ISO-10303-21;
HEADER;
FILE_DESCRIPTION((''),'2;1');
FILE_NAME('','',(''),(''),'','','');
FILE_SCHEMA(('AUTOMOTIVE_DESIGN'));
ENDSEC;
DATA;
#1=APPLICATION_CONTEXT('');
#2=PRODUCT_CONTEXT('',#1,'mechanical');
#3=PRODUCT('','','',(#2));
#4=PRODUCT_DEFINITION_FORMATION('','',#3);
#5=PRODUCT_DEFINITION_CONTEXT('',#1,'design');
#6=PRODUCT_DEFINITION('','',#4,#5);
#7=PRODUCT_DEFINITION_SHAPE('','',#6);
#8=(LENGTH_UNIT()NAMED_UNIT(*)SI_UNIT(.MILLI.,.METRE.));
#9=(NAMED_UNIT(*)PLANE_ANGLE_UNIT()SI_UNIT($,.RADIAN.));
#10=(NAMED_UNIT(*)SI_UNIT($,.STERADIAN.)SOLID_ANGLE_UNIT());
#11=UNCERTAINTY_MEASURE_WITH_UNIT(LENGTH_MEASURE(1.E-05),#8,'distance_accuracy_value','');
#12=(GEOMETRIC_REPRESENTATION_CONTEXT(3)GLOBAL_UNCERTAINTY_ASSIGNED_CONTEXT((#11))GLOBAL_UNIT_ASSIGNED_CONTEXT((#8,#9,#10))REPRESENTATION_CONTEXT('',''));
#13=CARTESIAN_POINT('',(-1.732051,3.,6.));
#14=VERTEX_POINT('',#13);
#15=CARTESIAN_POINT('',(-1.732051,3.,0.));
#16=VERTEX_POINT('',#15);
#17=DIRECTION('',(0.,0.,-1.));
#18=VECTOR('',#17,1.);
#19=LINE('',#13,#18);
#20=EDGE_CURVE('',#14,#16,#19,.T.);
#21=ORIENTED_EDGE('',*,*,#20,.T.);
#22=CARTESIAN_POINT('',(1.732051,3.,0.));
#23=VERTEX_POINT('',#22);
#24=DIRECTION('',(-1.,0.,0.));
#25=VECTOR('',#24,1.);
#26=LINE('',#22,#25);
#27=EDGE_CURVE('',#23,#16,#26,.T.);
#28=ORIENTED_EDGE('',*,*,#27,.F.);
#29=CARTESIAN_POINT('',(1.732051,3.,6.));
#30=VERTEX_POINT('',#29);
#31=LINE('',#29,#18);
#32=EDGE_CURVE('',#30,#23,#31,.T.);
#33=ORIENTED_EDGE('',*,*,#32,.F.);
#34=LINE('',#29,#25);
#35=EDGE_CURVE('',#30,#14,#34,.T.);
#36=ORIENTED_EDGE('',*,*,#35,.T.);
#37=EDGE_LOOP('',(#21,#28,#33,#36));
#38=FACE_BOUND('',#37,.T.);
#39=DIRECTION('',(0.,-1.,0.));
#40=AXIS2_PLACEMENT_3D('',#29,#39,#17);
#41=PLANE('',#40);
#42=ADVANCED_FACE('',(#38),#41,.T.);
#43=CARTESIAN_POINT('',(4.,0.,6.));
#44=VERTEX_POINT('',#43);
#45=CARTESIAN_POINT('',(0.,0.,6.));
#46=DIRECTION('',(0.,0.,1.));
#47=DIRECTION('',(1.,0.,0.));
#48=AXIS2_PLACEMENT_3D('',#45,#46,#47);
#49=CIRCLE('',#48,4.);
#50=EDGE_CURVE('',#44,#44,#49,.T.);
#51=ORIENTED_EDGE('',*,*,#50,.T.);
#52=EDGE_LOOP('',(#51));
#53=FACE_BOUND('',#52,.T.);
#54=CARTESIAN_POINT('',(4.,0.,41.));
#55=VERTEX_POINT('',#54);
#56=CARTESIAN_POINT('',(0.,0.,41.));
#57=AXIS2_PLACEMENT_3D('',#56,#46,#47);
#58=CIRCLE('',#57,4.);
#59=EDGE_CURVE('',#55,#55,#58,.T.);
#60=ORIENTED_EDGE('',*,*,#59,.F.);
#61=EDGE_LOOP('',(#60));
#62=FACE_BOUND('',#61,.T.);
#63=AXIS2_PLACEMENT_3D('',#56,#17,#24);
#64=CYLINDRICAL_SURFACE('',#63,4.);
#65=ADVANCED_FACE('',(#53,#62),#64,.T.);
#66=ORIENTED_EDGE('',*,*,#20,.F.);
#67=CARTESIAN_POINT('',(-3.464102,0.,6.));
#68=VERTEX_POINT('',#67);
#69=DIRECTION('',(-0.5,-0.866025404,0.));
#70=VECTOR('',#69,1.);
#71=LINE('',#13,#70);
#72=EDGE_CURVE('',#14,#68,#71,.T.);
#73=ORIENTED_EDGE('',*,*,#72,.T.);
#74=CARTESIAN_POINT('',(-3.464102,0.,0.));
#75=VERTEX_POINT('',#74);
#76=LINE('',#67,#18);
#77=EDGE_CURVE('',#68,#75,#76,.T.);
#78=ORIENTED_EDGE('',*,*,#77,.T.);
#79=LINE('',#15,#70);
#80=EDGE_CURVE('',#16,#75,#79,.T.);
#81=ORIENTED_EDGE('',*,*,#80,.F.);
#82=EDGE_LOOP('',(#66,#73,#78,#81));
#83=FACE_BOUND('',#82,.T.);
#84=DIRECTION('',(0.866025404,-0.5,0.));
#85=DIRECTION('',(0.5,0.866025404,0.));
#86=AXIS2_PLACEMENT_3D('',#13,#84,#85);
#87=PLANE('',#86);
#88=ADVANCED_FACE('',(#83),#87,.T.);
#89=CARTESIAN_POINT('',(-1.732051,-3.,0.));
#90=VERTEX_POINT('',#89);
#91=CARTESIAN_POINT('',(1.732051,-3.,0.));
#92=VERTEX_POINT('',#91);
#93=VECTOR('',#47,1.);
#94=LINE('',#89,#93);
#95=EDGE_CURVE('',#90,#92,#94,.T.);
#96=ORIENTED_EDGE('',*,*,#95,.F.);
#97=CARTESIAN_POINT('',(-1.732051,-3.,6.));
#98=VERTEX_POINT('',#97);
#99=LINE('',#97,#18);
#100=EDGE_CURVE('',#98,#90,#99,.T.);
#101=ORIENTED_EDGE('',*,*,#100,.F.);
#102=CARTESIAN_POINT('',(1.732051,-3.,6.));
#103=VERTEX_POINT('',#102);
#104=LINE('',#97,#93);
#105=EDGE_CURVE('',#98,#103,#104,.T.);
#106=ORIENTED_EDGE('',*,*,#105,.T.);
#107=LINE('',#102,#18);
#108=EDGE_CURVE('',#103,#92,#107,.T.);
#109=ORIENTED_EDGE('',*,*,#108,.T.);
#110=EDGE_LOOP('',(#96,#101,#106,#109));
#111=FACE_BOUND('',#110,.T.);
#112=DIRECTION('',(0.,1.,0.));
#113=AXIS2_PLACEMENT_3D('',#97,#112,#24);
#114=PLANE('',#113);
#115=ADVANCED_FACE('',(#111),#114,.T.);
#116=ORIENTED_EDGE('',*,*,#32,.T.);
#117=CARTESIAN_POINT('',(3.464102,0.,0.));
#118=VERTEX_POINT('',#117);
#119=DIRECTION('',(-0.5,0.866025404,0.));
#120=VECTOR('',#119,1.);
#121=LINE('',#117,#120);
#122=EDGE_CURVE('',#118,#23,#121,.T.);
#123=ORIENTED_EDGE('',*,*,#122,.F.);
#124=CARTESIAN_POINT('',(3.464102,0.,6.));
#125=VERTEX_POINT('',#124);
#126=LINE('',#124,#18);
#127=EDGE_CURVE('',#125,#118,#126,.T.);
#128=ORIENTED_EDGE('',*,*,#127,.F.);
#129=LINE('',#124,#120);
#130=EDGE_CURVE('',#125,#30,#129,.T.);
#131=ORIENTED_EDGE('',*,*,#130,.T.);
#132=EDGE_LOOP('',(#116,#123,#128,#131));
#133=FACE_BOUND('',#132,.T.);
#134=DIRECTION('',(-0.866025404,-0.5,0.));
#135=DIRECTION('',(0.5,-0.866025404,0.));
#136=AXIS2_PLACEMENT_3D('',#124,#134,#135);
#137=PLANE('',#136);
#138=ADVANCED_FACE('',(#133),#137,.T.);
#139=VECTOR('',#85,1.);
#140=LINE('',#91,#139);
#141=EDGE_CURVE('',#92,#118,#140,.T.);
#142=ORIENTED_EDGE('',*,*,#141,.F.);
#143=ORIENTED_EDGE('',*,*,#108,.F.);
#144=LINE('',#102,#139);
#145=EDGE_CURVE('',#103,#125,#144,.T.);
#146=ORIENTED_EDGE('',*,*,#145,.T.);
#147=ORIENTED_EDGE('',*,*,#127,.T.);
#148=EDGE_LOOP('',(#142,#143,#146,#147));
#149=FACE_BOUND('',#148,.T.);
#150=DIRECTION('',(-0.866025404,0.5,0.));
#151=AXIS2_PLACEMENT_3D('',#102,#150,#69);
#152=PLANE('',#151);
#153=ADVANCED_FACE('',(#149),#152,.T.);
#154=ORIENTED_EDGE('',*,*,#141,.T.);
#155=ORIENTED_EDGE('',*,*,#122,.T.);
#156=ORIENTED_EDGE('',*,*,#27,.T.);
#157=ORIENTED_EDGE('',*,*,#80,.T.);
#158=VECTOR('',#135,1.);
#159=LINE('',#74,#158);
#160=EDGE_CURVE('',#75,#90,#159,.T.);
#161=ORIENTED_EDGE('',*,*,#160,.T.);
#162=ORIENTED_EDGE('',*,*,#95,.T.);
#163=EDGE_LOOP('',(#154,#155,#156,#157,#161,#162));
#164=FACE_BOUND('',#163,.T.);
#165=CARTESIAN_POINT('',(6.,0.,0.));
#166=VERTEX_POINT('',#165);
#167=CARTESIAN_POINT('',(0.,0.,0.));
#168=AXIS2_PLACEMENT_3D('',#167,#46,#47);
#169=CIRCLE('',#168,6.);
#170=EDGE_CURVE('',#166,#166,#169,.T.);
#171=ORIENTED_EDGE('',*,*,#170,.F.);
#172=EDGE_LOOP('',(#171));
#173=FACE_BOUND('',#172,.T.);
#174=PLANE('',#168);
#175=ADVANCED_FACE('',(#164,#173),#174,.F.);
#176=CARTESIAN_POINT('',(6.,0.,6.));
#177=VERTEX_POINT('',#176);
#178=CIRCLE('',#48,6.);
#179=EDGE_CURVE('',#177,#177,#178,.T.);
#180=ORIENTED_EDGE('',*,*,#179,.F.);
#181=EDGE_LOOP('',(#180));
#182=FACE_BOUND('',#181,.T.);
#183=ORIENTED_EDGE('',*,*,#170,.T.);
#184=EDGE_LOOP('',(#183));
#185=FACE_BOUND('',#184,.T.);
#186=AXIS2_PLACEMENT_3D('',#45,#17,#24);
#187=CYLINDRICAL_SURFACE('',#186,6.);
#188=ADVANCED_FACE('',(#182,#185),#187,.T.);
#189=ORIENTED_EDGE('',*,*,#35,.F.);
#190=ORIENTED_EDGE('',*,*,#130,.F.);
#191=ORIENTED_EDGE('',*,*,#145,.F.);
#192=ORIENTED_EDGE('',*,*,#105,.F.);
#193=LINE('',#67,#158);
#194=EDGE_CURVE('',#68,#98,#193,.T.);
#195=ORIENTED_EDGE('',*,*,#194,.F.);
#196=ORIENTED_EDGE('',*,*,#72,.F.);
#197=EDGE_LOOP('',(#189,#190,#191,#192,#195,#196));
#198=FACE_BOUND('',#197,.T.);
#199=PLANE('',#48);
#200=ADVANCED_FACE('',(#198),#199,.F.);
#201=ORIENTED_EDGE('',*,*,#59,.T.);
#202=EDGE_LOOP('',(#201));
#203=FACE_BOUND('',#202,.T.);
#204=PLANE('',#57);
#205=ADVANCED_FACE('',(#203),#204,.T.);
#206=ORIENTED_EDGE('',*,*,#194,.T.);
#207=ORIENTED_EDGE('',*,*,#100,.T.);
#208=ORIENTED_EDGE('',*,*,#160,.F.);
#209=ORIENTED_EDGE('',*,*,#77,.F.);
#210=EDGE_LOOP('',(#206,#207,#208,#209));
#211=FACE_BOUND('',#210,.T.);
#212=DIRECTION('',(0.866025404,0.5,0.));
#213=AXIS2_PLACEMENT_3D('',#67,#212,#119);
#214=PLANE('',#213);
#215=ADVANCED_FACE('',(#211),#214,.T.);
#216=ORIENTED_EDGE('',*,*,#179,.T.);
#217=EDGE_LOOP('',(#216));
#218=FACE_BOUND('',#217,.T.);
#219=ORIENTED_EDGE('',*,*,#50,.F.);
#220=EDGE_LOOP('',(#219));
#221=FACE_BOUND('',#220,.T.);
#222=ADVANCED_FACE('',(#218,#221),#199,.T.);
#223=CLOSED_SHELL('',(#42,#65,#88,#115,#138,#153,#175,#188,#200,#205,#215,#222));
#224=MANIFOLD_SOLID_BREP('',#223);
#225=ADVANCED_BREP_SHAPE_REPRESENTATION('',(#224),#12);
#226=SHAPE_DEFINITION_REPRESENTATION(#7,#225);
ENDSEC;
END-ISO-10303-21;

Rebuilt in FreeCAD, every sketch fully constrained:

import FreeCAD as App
import Part
import Sketcher
from FreeCAD import Vector
Q = App.Units.Quantity


def add_polygon(sketch, points):
    """Adds a closed chain of lines whose ends are joined by coincident constraints."""
    first, n = sketch.GeometryCount, len(points)
    for a, b in zip(points, points[1:] + points[:1]):
        sketch.addGeometry(Part.LineSegment(App.Vector(*a, 0), App.Vector(*b, 0)), False)
    for i in range(n):
        sketch.addConstraint(Sketcher.Constraint("Coincident", first + i, 2, first + (i + 1) % n, 1))

doc = App.newDocument("Part")
params = doc.addObject("Spreadsheet::Sheet", "Params")
for row, (alias, value) in enumerate([
    ("sketch1_diameter", "12 mm"),
    ("pad1_length", "6 mm"),
    ("sketch2_diameter", "8 mm"),
    ("pad2_length", "35 mm"),
], start=1):
    params.set(f"A{row}", alias)
    params.set(f"B{row}", "=" + value)
    params.setAlias(f"B{row}", alias)

body = doc.addObject("PartDesign::Body", "Body")

# Sketch on XY plane
sketch1 = body.newObject("Sketcher::SketchObject", "Sketch")
sketch1.AttachmentSupport = (doc.getObject("XY_Plane"), [""])
sketch1.MapMode = "FlatFace"
sketch1.addGeometry(Part.Circle(Vector(0, 0, 0), Vector(0, 0, 1), 6), False)  # 0
add_polygon(sketch1, [(1.732051, 3), (3.464102, 0), (1.732051, -3), (-1.732051, -3), (-3.464102, 0), (-1.732051, 3)])  # lines 1-6
sketch1.addConstraint(Sketcher.Constraint("Horizontal", 3))
sketch1.addConstraint(Sketcher.Constraint("Horizontal", 6))
sketch1.addConstraint(Sketcher.Constraint("Coincident", 0, 3, -1, 1))
sketch1.addConstraint(Sketcher.Constraint("Symmetric", 1, 2, 4, 2, -1, 1))
sketch1.addConstraint(Sketcher.Constraint("Symmetric", 2, 2, 5, 2, -1, 1))
sketch1.addConstraint(Sketcher.Constraint("PointOnObject", 1, 2, -1))
sketch1.addConstraint(Sketcher.Constraint("Parallel", 1, 4))
sketch1.addConstraint(Sketcher.Constraint("Vertical", 3, 2, 5, 2))
sketch1.addConstraint(Sketcher.Constraint("Diameter", 0, Q("12 mm")))
sketch1.addConstraint(Sketcher.Constraint("Angle", 1, Q("-60 deg")))
sketch1.addConstraint(Sketcher.Constraint("DistanceY", 2, 2, -1, 1, Q("3 mm")))
sketch1.addConstraint(Sketcher.Constraint("DistanceX", 3, 2, 3, 1, Q("3.464102 mm")))
sketch1.setExpression("Constraints[14]", "Params.sketch1_diameter")
pad1 = body.newObject("PartDesign::Pad", "Pad")
pad1.Profile = sketch1
pad1.setExpression("Length", "Params.pad1_length")

# Sketch on XY plane
sketch2 = body.newObject("Sketcher::SketchObject", "Sketch001")
sketch2.AttachmentSupport = (doc.getObject("XY_Plane"), [""])
sketch2.MapMode = "FlatFace"
sketch2.AttachmentOffset = App.Placement(Vector(0, 0, 6), App.Rotation())
sketch2.addGeometry(Part.Circle(Vector(0, 0, 0), Vector(0, 0, 1), 4), False)
sketch2.addConstraint(Sketcher.Constraint("Coincident", 0, 3, -1, 1))
sketch2.addConstraint(Sketcher.Constraint("Diameter", 0, Q("8 mm")))
sketch2.setExpression("Constraints[1]", "Params.sketch2_diameter")
pad2 = body.newObject("PartDesign::Pad", "Pad001")
pad2.Profile = sketch2
pad2.setExpression("Length", "Params.pad2_length")

doc.recompute()
